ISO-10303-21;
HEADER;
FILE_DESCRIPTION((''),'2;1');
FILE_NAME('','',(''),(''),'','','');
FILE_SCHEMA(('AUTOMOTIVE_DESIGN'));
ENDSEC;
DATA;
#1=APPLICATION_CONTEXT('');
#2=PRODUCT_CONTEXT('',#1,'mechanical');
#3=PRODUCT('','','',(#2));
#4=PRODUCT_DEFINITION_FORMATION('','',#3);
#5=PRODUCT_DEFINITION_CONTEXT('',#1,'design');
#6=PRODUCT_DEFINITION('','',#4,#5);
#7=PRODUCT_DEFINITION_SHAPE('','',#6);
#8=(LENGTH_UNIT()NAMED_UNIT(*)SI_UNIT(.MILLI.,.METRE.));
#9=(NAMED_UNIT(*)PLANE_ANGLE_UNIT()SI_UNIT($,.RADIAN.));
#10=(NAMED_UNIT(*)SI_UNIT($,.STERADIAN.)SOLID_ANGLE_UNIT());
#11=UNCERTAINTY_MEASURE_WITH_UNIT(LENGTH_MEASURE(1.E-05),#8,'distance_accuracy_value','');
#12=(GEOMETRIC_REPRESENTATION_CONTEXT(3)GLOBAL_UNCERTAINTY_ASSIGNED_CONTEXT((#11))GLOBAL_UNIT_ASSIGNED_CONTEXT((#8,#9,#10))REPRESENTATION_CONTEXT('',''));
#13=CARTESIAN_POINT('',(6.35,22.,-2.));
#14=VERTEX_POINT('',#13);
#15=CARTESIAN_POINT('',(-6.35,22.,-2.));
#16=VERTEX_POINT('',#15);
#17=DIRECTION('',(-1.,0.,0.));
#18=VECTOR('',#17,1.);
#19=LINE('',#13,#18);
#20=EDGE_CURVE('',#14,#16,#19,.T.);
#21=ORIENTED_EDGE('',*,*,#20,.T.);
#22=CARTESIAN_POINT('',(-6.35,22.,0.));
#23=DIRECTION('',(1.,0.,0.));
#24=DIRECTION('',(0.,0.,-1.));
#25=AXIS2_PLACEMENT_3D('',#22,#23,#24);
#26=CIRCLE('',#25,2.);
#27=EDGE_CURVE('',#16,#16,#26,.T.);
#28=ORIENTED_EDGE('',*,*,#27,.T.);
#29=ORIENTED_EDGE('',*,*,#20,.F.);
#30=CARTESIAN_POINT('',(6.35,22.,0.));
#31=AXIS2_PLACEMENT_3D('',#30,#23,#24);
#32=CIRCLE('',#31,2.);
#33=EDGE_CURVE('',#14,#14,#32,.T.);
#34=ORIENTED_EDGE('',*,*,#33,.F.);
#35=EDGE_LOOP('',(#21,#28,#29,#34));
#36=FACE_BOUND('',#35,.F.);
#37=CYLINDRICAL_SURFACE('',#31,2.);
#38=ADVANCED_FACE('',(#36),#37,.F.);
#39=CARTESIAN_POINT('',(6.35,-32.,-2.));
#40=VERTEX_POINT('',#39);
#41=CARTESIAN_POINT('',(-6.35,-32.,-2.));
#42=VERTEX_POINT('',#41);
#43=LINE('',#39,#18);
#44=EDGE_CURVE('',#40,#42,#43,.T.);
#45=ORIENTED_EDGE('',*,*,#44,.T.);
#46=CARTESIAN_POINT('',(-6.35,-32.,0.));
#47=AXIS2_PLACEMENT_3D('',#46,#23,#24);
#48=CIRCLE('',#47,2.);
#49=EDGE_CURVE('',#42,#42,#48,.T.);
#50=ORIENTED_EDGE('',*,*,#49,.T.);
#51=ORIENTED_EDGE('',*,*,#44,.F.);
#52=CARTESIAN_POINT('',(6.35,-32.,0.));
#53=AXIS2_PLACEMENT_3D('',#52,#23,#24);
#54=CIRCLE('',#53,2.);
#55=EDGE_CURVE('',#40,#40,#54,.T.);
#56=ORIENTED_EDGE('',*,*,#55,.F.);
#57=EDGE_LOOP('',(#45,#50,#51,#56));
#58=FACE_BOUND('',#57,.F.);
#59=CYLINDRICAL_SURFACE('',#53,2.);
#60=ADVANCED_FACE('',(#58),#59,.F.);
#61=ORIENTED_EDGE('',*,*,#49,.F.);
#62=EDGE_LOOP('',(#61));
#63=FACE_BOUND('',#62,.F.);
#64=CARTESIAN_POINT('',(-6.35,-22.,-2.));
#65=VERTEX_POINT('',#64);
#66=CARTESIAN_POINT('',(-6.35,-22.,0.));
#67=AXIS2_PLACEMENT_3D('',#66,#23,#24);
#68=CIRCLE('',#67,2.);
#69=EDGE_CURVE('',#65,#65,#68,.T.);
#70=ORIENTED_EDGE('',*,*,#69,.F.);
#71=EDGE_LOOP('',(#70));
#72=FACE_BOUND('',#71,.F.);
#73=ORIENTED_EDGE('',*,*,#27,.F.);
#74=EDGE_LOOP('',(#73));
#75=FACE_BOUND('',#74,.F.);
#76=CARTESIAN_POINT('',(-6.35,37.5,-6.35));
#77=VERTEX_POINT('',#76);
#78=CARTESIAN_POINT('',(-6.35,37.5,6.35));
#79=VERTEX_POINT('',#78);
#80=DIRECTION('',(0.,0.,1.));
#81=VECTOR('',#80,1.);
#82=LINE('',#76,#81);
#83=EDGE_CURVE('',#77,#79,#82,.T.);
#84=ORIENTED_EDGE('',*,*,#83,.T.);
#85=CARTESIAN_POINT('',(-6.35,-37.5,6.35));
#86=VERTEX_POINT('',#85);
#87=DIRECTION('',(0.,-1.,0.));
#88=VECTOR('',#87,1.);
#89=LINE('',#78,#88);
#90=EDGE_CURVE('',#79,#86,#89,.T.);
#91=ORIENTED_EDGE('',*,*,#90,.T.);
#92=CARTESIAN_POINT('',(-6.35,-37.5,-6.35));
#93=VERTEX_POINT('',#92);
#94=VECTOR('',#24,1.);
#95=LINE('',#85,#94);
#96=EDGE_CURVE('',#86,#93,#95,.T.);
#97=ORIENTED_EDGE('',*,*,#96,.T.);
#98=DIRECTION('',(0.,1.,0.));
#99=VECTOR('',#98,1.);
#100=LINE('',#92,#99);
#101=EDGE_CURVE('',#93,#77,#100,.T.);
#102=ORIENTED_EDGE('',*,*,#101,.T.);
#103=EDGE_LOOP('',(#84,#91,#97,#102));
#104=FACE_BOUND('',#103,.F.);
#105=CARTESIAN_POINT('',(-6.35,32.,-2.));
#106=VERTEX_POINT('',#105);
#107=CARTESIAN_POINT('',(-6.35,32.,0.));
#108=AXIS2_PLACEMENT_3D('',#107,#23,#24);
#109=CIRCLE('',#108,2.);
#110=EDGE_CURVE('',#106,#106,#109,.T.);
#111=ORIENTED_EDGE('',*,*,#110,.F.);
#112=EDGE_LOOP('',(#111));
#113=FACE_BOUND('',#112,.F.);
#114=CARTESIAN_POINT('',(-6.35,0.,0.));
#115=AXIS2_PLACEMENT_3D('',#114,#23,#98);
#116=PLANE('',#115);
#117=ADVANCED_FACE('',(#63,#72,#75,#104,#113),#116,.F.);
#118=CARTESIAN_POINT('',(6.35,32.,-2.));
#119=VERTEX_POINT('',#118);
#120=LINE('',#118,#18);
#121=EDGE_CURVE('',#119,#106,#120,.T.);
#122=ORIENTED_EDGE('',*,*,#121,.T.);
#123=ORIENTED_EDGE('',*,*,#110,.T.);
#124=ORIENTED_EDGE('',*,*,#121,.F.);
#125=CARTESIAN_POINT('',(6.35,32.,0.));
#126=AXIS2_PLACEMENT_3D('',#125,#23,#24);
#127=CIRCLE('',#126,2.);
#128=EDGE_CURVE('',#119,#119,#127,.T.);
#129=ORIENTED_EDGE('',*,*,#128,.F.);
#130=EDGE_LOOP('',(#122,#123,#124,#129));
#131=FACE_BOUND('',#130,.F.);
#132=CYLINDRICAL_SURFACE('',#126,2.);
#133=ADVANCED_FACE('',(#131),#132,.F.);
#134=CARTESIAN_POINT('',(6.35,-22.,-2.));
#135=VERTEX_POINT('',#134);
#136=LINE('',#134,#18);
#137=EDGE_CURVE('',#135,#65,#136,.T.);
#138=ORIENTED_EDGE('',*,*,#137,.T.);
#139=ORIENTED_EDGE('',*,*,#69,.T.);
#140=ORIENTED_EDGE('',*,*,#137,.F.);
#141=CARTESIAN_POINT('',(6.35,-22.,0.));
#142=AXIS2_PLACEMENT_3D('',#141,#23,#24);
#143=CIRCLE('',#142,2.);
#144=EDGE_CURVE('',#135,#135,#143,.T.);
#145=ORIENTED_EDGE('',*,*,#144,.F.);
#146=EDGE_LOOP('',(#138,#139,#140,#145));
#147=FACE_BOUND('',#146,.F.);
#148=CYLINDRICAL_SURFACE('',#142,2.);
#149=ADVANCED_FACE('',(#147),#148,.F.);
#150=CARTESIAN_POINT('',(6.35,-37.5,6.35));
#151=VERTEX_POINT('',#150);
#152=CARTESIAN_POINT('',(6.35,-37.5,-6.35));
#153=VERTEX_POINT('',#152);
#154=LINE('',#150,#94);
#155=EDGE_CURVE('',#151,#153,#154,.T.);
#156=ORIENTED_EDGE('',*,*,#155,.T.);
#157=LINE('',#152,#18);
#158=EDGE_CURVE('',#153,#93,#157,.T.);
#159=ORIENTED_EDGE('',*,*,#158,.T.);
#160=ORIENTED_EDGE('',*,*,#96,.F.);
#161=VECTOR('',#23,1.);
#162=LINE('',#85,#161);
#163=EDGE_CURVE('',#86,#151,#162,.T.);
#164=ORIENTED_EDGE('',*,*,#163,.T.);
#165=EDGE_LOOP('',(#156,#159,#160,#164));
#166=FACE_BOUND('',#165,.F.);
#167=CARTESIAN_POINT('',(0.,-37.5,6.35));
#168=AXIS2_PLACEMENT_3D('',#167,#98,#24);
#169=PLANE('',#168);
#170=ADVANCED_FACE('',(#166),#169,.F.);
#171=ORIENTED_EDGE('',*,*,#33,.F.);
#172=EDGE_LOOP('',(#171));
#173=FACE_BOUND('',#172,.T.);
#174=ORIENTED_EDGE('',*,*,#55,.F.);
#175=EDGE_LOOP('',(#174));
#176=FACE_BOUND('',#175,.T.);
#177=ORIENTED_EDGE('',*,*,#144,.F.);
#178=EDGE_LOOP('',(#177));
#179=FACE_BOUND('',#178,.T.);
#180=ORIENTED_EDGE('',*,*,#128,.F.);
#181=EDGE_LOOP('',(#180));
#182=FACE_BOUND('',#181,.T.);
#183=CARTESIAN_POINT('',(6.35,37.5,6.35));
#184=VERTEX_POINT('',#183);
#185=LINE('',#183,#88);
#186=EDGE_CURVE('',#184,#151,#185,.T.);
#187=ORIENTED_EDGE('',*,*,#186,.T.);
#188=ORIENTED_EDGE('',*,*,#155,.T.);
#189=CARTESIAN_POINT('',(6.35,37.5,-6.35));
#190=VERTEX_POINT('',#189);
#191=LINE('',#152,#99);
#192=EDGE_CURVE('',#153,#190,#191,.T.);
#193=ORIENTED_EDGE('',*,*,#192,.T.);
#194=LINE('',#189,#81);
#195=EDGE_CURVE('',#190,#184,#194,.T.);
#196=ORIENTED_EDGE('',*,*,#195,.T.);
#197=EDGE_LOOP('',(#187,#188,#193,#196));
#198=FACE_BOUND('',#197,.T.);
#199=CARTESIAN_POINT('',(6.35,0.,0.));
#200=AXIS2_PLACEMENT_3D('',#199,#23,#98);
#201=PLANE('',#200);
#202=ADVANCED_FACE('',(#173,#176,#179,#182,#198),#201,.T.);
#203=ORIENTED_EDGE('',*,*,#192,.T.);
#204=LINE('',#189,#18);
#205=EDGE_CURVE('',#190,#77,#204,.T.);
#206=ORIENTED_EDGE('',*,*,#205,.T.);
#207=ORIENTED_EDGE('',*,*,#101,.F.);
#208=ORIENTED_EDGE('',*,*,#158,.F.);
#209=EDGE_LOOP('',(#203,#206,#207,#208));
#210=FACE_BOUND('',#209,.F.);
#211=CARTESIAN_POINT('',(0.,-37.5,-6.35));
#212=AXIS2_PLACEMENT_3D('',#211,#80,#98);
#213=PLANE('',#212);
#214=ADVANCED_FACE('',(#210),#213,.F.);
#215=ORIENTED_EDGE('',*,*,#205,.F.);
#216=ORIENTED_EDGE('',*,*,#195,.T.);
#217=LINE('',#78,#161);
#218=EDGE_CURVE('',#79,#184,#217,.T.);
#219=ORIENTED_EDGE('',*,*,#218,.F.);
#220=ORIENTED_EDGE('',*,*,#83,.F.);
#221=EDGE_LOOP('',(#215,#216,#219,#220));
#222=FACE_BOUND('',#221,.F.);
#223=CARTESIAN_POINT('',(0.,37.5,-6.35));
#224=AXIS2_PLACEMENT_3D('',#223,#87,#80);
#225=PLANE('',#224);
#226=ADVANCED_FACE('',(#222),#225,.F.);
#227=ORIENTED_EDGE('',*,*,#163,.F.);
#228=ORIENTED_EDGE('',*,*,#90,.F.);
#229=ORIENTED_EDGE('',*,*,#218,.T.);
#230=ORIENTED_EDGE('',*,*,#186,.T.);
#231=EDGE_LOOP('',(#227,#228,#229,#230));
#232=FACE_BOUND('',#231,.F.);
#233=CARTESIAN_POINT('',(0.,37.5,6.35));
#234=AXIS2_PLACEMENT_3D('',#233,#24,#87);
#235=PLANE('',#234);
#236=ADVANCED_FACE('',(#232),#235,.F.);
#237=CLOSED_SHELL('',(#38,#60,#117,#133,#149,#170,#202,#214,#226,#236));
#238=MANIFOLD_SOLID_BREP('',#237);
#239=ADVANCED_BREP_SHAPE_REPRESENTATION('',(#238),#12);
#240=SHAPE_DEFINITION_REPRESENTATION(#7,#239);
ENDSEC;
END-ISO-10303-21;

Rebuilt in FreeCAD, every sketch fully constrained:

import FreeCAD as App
import Part
import Sketcher

V = App.Vector

doc = App.newDocument("Part")
body = doc.addObject("PartDesign::Body", "Body")

# Sketch on YZ plane
sketch1 = doc.addObject("Sketcher::SketchObject", "Sketch")
body.addObject(sketch1)
sketch1.AttachmentSupport = (doc.YZ_Plane, [""])
sketch1.MapMode = "FlatFace"
sketch1.addGeometry([
    Part.LineSegment(V(38, -6, 0), V(38, 6, 0)),
    Part.LineSegment(V(38, 6, 0), V(-38, 6, 0)),
    Part.LineSegment(V(-38, 6, 0), V(-38, -6, 0)),
    Part.LineSegment(V(-38, -6, 0), V(38, -6, 0)),
], False)
sketch1.addConstraint([
    Sketcher.Constraint("Coincident", 0, 2, 1, 1),
    Sketcher.Constraint("Coincident", 1, 2, 2, 1),
    Sketcher.Constraint("Coincident", 2, 2, 3, 1),
    Sketcher.Constraint("Coincident", 3, 2, 0, 1),
    Sketcher.Constraint("Vertical", 0),
    Sketcher.Constraint("Horizontal", 1),
    Sketcher.Constraint("Vertical", 2),
    Sketcher.Constraint("Horizontal", 3),
    Sketcher.Constraint("Symmetric", 0, 2, 2, 2, -1, 1),
    Sketcher.Constraint("DistanceX", 1, 2, 1, 1, 75.0),
    Sketcher.Constraint("DistanceY", 0, 1, 0, 2, 12.7),
])
pad1 = doc.addObject("PartDesign::Pad", "Pad")
body.addObject(pad1)
pad1.Profile = sketch1
pad1.Length = 12.7
pad1.Midplane = True

# Sketch on YZ plane
sketch2 = doc.addObject("Sketcher::SketchObject", "Sketch001")
body.addObject(sketch2)
sketch2.AttachmentSupport = (doc.YZ_Plane, [""])
sketch2.MapMode = "FlatFace"
sketch2.AttachmentOffset = App.Placement(V(0, 0, 6.35), App.Rotation())
sketch2.addGeometry([
    Part.Circle(V(32, 0, 0), V(0, 0, 1), 2),
    Part.Circle(V(22, 0, 0), V(0, 0, 1), 2),
    Part.Circle(V(-32, 0, 0), V(0, 0, 1), 2),
    Part.Circle(V(-22, 0, 0), V(0, 0, 1), 2),
], False)
sketch2.addConstraint([
    Sketcher.Constraint("Equal", 0, 1),
    Sketcher.Constraint("Equal", 1, 2),
    Sketcher.Constraint("Equal", 2, 3),
    Sketcher.Constraint("Symmetric", 0, 3, 2, 3, -1, 1),
    Sketcher.Constraint("Symmetric", 1, 3, 3, 3, -1, 1),
    Sketcher.Constraint("PointOnObject", 0, 3, -1),
    Sketcher.Constraint("PointOnObject", 1, 3, -1),
    Sketcher.Constraint("Diameter", 0, 4.0),
    Sketcher.Constraint("DistanceX", -1, 1, 1, 3, 22.0),
    Sketcher.Constraint("DistanceX", 1, 3, 0, 3, 10.0),
])
pocket1 = doc.addObject("PartDesign::Pocket", "Pocket")
body.addObject(pocket1)
pocket1.Profile = sketch2
pocket1.Type = "ThroughAll"

doc.recompute()
